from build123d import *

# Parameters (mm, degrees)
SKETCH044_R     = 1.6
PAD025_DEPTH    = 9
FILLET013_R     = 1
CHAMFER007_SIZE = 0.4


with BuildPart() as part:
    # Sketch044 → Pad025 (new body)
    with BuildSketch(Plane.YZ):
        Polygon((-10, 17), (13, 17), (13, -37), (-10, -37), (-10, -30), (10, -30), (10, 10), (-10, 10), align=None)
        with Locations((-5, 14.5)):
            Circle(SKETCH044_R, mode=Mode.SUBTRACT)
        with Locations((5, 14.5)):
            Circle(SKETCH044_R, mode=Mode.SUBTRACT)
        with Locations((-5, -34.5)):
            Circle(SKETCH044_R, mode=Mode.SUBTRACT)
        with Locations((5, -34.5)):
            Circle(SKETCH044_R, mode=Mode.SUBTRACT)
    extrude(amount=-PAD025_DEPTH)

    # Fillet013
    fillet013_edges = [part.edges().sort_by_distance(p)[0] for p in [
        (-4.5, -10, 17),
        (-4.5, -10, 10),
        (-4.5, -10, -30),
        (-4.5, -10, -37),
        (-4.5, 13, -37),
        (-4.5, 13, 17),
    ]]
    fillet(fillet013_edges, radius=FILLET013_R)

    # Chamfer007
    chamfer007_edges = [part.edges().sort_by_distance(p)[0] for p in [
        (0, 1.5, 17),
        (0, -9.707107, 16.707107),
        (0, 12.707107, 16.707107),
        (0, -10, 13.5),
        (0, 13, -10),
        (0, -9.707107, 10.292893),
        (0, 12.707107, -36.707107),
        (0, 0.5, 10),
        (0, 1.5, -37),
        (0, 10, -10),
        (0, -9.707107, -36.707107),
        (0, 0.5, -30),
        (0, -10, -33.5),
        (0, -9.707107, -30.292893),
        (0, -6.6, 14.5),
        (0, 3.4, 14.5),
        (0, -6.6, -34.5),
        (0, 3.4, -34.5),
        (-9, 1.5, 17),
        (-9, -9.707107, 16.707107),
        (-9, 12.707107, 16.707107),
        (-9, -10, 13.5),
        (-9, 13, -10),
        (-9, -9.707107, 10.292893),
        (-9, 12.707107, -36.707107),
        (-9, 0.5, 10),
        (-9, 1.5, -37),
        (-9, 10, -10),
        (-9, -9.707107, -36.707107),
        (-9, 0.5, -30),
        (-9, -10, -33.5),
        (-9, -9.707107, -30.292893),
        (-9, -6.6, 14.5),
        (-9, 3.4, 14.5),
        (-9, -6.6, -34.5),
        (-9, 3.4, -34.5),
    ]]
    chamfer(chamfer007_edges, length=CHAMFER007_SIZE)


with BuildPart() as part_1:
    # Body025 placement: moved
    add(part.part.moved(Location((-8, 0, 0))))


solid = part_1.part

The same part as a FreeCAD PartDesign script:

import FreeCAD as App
import Part
import Sketcher


def edges_at(feature, points):
    """Names of the edges that pass closest to the given points."""
    edges = feature.Shape.Edges
    near = lambda p: min(range(len(edges)), key=lambda i: edges[i].distToShape(Part.Vertex(*p))[0])
    return sorted({f"Edge{near(p) + 1}" for p in points})

doc = App.newDocument("Part")
body = doc.addObject("PartDesign::Body", "Body")

# Sketch on YZ plane
sketch1 = body.newObject("Sketcher::SketchObject", "Sketch")
sketch1.AttachmentSupport = (doc.getObject("YZ_Plane"), [""])
sketch1.MapMode = "FlatFace"
sketch1.addGeometry(Part.LineSegment(App.Vector(13, 17, 0), App.Vector(-10, 17, 0)), False)
sketch1.addGeometry(Part.LineSegment(App.Vector(-10, 17, 0), App.Vector(-10, 10, 0)), False)
sketch1.addGeometry(Part.LineSegment(App.Vector(-10, 10, 0), App.Vector(10, 10, 0)), False)
sketch1.addGeometry(Part.LineSegment(App.Vector(10, 10, 0), App.Vector(10, -30, 0)), False)
sketch1.addGeometry(Part.LineSegment(App.Vector(10, -30, 0), App.Vector(-10, -30, 0)), False)
sketch1.addGeometry(Part.LineSegment(App.Vector(-10, -30, 0), App.Vector(-10, -37, 0)), False)
sketch1.addGeometry(Part.LineSegment(App.Vector(-10, -37, 0), App.Vector(13, -37, 0)), False)
sketch1.addGeometry(Part.LineSegment(App.Vector(13, -37, 0), App.Vector(13, 17, 0)), False)
sketch1.addGeometry(Part.Circle(App.Vector(5, -34.5, 0), App.Vector(0, 0, 1), 1.6), False)
sketch1.addGeometry(Part.Circle(App.Vector(-5, -34.5, 0), App.Vector(0, 0, 1), 1.6), False)
sketch1.addGeometry(Part.Circle(App.Vector(5, 14.5, 0), App.Vector(0, 0, 1), 1.6), False)
sketch1.addGeometry(Part.Circle(App.Vector(-5, 14.5, 0), App.Vector(0, 0, 1), 1.6), False)
sketch1.addConstraint(Sketcher.Constraint("Coincident", 0, 2, 1, 1))
sketch1.addConstraint(Sketcher.Constraint("Coincident", 1, 2, 2, 1))
sketch1.addConstraint(Sketcher.Constraint("Coincident", 2, 2, 3, 1))
sketch1.addConstraint(Sketcher.Constraint("Coincident", 3, 2, 4, 1))
sketch1.addConstraint(Sketcher.Constraint("Coincident", 4, 2, 5, 1))
sketch1.addConstraint(Sketcher.Constraint("Coincident", 5, 2, 6, 1))
sketch1.addConstraint(Sketcher.Constraint("Coincident", 6, 2, 7, 1))
sketch1.addConstraint(Sketcher.Constraint("Coincident", 7, 2, 0, 1))
sketch1.addConstraint(Sketcher.Constraint("Horizontal", 0))
sketch1.addConstraint(Sketcher.Constraint("Vertical", 1))
sketch1.addConstraint(Sketcher.Constraint("Horizontal", 2))
sketch1.addConstraint(Sketcher.Constraint("Vertical", 3))
sketch1.addConstraint(Sketcher.Constraint("Horizontal", 4))
sketch1.addConstraint(Sketcher.Constraint("Vertical", 5))
sketch1.addConstraint(Sketcher.Constraint("Horizontal", 6))
sketch1.addConstraint(Sketcher.Constraint("Vertical", 7))
sketch1.addConstraint(Sketcher.Constraint("Equal", 8, 9))
sketch1.addConstraint(Sketcher.Constraint("Equal", 9, 10))
sketch1.addConstraint(Sketcher.Constraint("Equal", 10, 11))
sketch1.addConstraint(Sketcher.Constraint("Symmetric", 8, 3, 9, 3, -2))
sketch1.addConstraint(Sketcher.Constraint("Symmetric", 10, 3, 11, 3, -2))
sketch1.addConstraint(Sketcher.Constraint("Vertical", 8, 3, 10, 3))
sketch1.addConstraint(Sketcher.Constraint("Vertical", 1, 2, 4, 2))
sketch1.addConstraint(Sketcher.Constraint("Equal", 1, 5))
sketch1.addConstraint(Sketcher.Constraint("Diameter", 8, 3.2))
sketch1.addConstraint(Sketcher.Constraint("DistanceX", 0, 2, 0, 1, 23.0))
sketch1.addConstraint(Sketcher.Constraint("DistanceX", 2, 1, 2, 2, 20.0))
sketch1.addConstraint(Sketcher.Constraint("DistanceY", 1, 2, 1, 1, 7.0))
sketch1.addConstraint(Sketcher.Constraint("DistanceY", 3, 2, 3, 1, 40.0))
sketch1.addConstraint(Sketcher.Constraint("DistanceX", -1, 1, 8, 3, 5.0))
sketch1.addConstraint(Sketcher.Constraint("DistanceX", 0, 2, -1, 1, 10.0))
sketch1.addConstraint(Sketcher.Constraint("DistanceY", -1, 1, 0, 2, 17.0))
sketch1.addConstraint(Sketcher.Constraint("DistanceY", 8, 3, 10, 3, 49.0))
sketch1.addConstraint(Sketcher.Constraint("DistanceY", 8, 3, -1, 1, 34.5))
pad1 = body.newObject("PartDesign::Pad", "Pad")
pad1.Profile = sketch1
pad1.Length = 9
pad1.Reversed = True
doc.recompute()

fillet = body.newObject("PartDesign::Fillet", "Fillet")
fillet.Base = (pad1, edges_at(pad1, [
    (-4.5, -10, 17),
    (-4.5, -10, 10),
    (-4.5, -10, -30),
    (-4.5, -10, -37),
    (-4.5, 13, -37),
    (-4.5, 13, 17),
]))
fillet.Radius = 1
doc.recompute()

chamfer = body.newObject("PartDesign::Chamfer", "Chamfer")
chamfer.Base = (fillet, edges_at(fillet, [
    (0, 1.5, 17),
    (0, -9.707, 16.707),
    (0, 12.707, 16.707),
    (0, -10, 13.5),
    (0, 13, -10),
    (0, -9.707, 10.293),
    (0, 12.707, -36.707),
    (0, 0.5, 10),
    (0, 1.5, -37),
    (0, 10, -10),
    (0, -9.707, -36.707),
    (0, 0.5, -30),
    (0, -10, -33.5),
    (0, -9.707, -30.293),
    (0, -6.6, 14.5),
    (0, 3.4, 14.5),
    (0, -6.6, -34.5),
    (0, 3.4, -34.5),
    (-9, 1.5, 17),
    (-9, -9.707, 16.707),
    (-9, 12.707, 16.707),
    (-9, -10, 13.5),
    (-9, 13, -10),
    (-9, -9.707, 10.293),
    (-9, 12.707, -36.707),
    (-9, 0.5, 10),
    (-9, 1.5, -37),
    (-9, 10, -10),
    (-9, -9.707, -36.707),
    (-9, 0.5, -30),
    (-9, -10, -33.5),
    (-9, -9.707, -30.293),
    (-9, -6.6, 14.5),
    (-9, 3.4, 14.5),
    (-9, -6.6, -34.5),
    (-9, 3.4, -34.5),
]))
chamfer.Size = 0.4
body2 = doc.addObject("PartDesign::Body", "Body001")
doc.recompute()

body.Placement = App.Placement(App.Vector(-8, 0, 0), App.Rotation(App.Vector(0, 0, 1), 0))
boolean = body2.newObject("PartDesign::Boolean", "Boolean")
boolean.Type = "Fuse"
boolean.addObjects([body])

doc.recompute()
